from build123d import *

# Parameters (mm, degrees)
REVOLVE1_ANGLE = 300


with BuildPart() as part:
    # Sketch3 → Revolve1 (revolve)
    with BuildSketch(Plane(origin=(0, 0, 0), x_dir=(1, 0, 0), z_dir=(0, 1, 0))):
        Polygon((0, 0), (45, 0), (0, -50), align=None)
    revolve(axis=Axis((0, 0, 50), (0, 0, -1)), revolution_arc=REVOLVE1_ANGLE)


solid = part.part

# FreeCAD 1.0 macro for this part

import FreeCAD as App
import Part
import Sketcher
Q = App.Units.Quantity


def add_polygon(sketch, points):
    """Adds a closed chain of lines whose ends are joined by coincident constraints."""
    first, n = sketch.GeometryCount, len(points)
    for a, b in zip(points, points[1:] + points[:1]):
        sketch.addGeometry(Part.LineSegment(App.Vector(*a, 0), App.Vector(*b, 0)), False)
    for i in range(n):
        sketch.addConstraint(Sketcher.Constraint("Coincident", first + i, 2, first + (i + 1) % n, 1))

doc = App.newDocument("Part")
body = doc.addObject("PartDesign::Body", "Body")

sketch1 = body.newObject("Sketcher::SketchObject", "Sketch")
sketch1.AttachmentSupport = (doc.getObject("XZ_Plane"), [""])
sketch1.MapMode = "FlatFace"
add_polygon(sketch1, [(45, 0), (0, 0), (0, 50)])
sketch1.addConstraint([
    Sketcher.Constraint("Horizontal", 0),
    Sketcher.Constraint("Vertical", 1),
    Sketcher.Constraint("Coincident", 0, 2, -1, 1),
    Sketcher.Constraint("DistanceX", 0, 2, 0, 1, Q("45 mm")),
    Sketcher.Constraint("DistanceY", 1, 1, 1, 2, Q("50 mm")),
])
revolution = body.newObject("PartDesign::Revolution", "Revolution")
revolution.Profile = sketch1
revolution.ReferenceAxis = (sketch1, ["V_Axis"])
revolution.Angle = 300
revolution.Reversed = True

doc.recompute()
